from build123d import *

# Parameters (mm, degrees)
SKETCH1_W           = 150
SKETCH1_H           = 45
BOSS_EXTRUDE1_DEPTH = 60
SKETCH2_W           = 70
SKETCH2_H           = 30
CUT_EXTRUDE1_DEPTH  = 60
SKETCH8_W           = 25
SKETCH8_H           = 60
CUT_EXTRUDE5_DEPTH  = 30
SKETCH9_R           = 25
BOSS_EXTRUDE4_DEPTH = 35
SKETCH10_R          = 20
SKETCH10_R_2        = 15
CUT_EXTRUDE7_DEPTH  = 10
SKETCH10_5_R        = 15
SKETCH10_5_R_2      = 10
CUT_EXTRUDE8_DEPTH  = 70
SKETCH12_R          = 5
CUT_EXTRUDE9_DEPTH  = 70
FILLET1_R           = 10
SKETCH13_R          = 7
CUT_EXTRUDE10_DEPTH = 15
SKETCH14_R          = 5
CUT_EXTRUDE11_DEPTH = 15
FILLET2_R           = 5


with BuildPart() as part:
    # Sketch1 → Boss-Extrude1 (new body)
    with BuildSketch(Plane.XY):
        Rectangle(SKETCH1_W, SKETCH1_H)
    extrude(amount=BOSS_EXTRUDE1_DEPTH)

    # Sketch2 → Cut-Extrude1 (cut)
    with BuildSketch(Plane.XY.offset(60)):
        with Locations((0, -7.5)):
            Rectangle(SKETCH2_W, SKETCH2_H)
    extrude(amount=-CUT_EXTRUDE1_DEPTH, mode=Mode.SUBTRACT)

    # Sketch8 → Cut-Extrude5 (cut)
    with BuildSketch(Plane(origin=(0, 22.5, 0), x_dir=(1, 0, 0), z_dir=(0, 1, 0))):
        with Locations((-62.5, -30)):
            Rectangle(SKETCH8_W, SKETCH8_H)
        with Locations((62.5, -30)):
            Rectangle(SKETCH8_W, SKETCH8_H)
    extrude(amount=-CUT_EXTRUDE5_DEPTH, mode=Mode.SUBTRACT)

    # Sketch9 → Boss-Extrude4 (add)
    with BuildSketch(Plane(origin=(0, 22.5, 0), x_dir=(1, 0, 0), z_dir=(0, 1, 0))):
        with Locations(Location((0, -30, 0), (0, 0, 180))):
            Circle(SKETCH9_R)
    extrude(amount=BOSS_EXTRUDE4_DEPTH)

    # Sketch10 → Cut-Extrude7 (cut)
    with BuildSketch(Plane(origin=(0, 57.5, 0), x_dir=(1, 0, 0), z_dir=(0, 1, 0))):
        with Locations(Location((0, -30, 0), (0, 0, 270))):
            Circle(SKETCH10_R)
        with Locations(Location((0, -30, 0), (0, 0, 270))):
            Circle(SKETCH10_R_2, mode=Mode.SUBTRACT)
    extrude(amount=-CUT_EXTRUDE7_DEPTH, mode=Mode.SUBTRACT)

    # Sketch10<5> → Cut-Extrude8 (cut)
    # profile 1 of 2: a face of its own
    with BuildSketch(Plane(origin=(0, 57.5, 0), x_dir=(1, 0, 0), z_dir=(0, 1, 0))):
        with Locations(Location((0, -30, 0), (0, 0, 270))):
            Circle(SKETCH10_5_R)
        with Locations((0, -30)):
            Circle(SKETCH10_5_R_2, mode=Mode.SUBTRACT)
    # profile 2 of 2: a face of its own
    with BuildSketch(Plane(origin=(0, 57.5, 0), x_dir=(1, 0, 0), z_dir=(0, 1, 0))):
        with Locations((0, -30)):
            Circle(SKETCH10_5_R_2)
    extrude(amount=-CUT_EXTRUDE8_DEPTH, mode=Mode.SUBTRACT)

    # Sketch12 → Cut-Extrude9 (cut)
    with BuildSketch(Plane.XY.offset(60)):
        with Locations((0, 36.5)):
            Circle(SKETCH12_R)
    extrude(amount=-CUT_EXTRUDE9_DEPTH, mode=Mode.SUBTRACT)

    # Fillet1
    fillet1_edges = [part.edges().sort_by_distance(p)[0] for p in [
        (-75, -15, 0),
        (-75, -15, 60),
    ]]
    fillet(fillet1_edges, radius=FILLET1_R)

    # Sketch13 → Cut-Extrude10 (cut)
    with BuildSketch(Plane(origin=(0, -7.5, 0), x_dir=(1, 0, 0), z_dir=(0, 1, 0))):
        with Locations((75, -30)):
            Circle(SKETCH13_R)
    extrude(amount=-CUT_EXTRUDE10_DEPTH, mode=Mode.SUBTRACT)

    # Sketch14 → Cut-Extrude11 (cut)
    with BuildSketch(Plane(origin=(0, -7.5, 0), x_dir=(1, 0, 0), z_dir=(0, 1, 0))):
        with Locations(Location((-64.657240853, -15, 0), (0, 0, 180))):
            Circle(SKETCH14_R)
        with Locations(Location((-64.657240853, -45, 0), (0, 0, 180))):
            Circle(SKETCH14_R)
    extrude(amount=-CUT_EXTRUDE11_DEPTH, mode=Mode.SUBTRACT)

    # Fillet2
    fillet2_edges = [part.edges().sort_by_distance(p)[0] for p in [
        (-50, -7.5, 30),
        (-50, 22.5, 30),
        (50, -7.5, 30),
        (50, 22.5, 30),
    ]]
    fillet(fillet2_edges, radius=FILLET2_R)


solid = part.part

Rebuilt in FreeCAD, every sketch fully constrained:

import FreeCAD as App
import Part
import Sketcher
Q = App.Units.Quantity


def edges_at(feature, points):
    """Names of the edges that pass closest to the given points."""
    edges = feature.Shape.Edges
    near = lambda p: min(range(len(edges)), key=lambda i: edges[i].distToShape(Part.Vertex(*p))[0])
    return sorted({f"Edge{near(p) + 1}" for p in points})

doc = App.newDocument("Part")
body = doc.addObject("PartDesign::Body", "Body")

sketch1 = body.newObject("Sketcher::SketchObject", "Sketch")
sketch1.AttachmentSupport = (doc.getObject("XY_Plane"), [""])
sketch1.MapMode = "FlatFace"
sketch1.addGeometry([
    Part.LineSegment(App.Vector(-75, 22, 0), App.Vector(-75, -22, 0)),
    Part.LineSegment(App.Vector(-75, -22, 0), App.Vector(75, -22, 0)),
    Part.LineSegment(App.Vector(75, -22, 0), App.Vector(75, 22, 0)),
    Part.LineSegment(App.Vector(75, 22, 0), App.Vector(-75, 22, 0)),
], False)
sketch1.addConstraint([
    Sketcher.Constraint("Coincident", 0, 2, 1, 1),
    Sketcher.Constraint("Coincident", 1, 2, 2, 1),
    Sketcher.Constraint("Coincident", 2, 2, 3, 1),
    Sketcher.Constraint("Coincident", 3, 2, 0, 1),
    Sketcher.Constraint("Vertical", 0),
    Sketcher.Constraint("Horizontal", 1),
    Sketcher.Constraint("Vertical", 2),
    Sketcher.Constraint("Horizontal", 3),
    Sketcher.Constraint("Symmetric", 0, 2, 2, 2, -1, 1),
    Sketcher.Constraint("DistanceX", 1, 1, 1, 2, Q("150 mm")),
    Sketcher.Constraint("DistanceY", 0, 2, 0, 1, Q("45 mm")),
])
pad1 = body.newObject("PartDesign::Pad", "Pad")
pad1.Profile = sketch1
pad1.Length = 60

sketch2 = body.newObject("Sketcher::SketchObject", "Sketch001")
sketch2.AttachmentSupport = (doc.getObject("XY_Plane"), [""])
sketch2.MapMode = "FlatFace"
sketch2.AttachmentOffset = App.Placement(App.Vector(0, 0, 60), App.Rotation())
sketch2.addGeometry([
    Part.LineSegment(App.Vector(-35, 8, 0), App.Vector(-35, -22, 0)),
    Part.LineSegment(App.Vector(-35, -22, 0), App.Vector(35, -22, 0)),
    Part.LineSegment(App.Vector(35, -22, 0), App.Vector(35, 8, 0)),
    Part.LineSegment(App.Vector(35, 8, 0), App.Vector(-35, 8, 0)),
], False)
sketch2.addConstraint([
    Sketcher.Constraint("Coincident", 0, 2, 1, 1),
    Sketcher.Constraint("Coincident", 1, 2, 2, 1),
    Sketcher.Constraint("Coincident", 2, 2, 3, 1),
    Sketcher.Constraint("Coincident", 3, 2, 0, 1),
    Sketcher.Constraint("Vertical", 0),
    Sketcher.Constraint("Horizontal", 1),
    Sketcher.Constraint("Vertical", 2),
    Sketcher.Constraint("Horizontal", 3),
    Sketcher.Constraint("DistanceX", 1, 1, 1, 2, Q("70 mm")),
    Sketcher.Constraint("DistanceY", 0, 2, 0, 1, Q("30 mm")),
    Sketcher.Constraint("DistanceX", 0, 2, -1, 1, Q("35 mm")),
    Sketcher.Constraint("DistanceY", 0, 2, -1, 1, Q("22.5 mm")),
])
pocket1 = body.newObject("PartDesign::Pocket", "Pocket")
pocket1.Profile = sketch2
pocket1.Length = 60

sketch3 = body.newObject("Sketcher::SketchObject", "Sketch002")
sketch3.AttachmentSupport = (doc.getObject("XZ_Plane"), [""])
sketch3.MapMode = "FlatFace"
sketch3.AttachmentOffset = App.Placement(App.Vector(0, 0, -22.5), App.Rotation())
sketch3.addGeometry([
    Part.LineSegment(App.Vector(-75, 0, 0), App.Vector(-75, 60, 0)),
    Part.LineSegment(App.Vector(-75, 60, 0), App.Vector(-50, 60, 0)),
    Part.LineSegment(App.Vector(-50, 60, 0), App.Vector(-50, 0, 0)),
    Part.LineSegment(App.Vector(-50, 0, 0), App.Vector(-75, 0, 0)),
    Part.LineSegment(App.Vector(50, 0, 0), App.Vector(50, 60, 0)),
    Part.LineSegment(App.Vector(50, 60, 0), App.Vector(75, 60, 0)),
    Part.LineSegment(App.Vector(75, 60, 0), App.Vector(75, 0, 0)),
    Part.LineSegment(App.Vector(75, 0, 0), App.Vector(50, 0, 0)),
], False)
sketch3.addConstraint([
    Sketcher.Constraint("Coincident", 0, 2, 1, 1),
    Sketcher.Constraint("Coincident", 1, 2, 2, 1),
    Sketcher.Constraint("Coincident", 2, 2, 3, 1),
    Sketcher.Constraint("Coincident", 3, 2, 0, 1),
    Sketcher.Constraint("Coincident", 4, 2, 5, 1),
    Sketcher.Constraint("Coincident", 5, 2, 6, 1),
    Sketcher.Constraint("Coincident", 6, 2, 7, 1),
    Sketcher.Constraint("Coincident", 7, 2, 4, 1),
    Sketcher.Constraint("Vertical", 0),
    Sketcher.Constraint("Horizontal", 1),
    Sketcher.Constraint("Vertical", 2),
    Sketcher.Constraint("Horizontal", 3),
    Sketcher.Constraint("Vertical", 4),
    Sketcher.Constraint("Horizontal", 5),
    Sketcher.Constraint("Vertical", 6),
    Sketcher.Constraint("Horizontal", 7),
    Sketcher.Constraint("Symmetric", 3, 2, 6, 2, -1, 1),
    Sketcher.Constraint("Symmetric", 1, 2, 4, 2, -2),
    Sketcher.Constraint("PointOnObject", 2, 2, -1),
    Sketcher.Constraint("DistanceX", 1, 1, 1, 2, Q("25 mm")),
    Sketcher.Constraint("DistanceY", 0, 1, 0, 2, Q("60 mm")),
    Sketcher.Constraint("DistanceX", 0, 2, -1, 1, Q("75 mm")),
])
pocket2 = body.newObject("PartDesign::Pocket", "Pocket001")
pocket2.Profile = sketch3
pocket2.Length = 30
pocket2.Reversed = True

sketch4 = body.newObject("Sketcher::SketchObject", "Sketch003")
sketch4.AttachmentSupport = (doc.getObject("XZ_Plane"), [""])
sketch4.MapMode = "FlatFace"
sketch4.AttachmentOffset = App.Placement(App.Vector(0, 0, -22.5), App.Rotation())
sketch4.addGeometry(Part.Circle(App.Vector(0, 30, 0), App.Vector(0, 0, 1), 25), False)
sketch4.addConstraint([
    Sketcher.Constraint("PointOnObject", 0, 3, -2),
    Sketcher.Constraint("Diameter", 0, Q("50 mm")),
    Sketcher.Constraint("DistanceY", -1, 1, 0, 3, Q("30 mm")),
])
pad2 = body.newObject("PartDesign::Pad", "Pad001")
pad2.Profile = sketch4
pad2.Length = 35
pad2.Reversed = True

sketch5 = body.newObject("Sketcher::SketchObject", "Sketch004")
sketch5.AttachmentSupport = (doc.getObject("XZ_Plane"), [""])
sketch5.MapMode = "FlatFace"
sketch5.AttachmentOffset = App.Placement(App.Vector(0, 0, -57.5), App.Rotation())
sketch5.addGeometry([
    Part.Circle(App.Vector(0, 30, 0), App.Vector(0, 0, 1), 20),
    Part.Circle(App.Vector(0, 30, 0), App.Vector(0, 0, 1), 15),
], False)
sketch5.addConstraint([
    Sketcher.Constraint("Coincident", 1, 3, 0, 3),
    Sketcher.Constraint("PointOnObject", 0, 3, -2),
    Sketcher.Constraint("Diameter", 0, Q("40 mm")),
    Sketcher.Constraint("Diameter", 1, Q("30 mm")),
    Sketcher.Constraint("DistanceY", -1, 1, 0, 3, Q("30 mm")),
])
pocket3 = body.newObject("PartDesign::Pocket", "Pocket002")
pocket3.Profile = sketch5
pocket3.Length = 10
pocket3.Reversed = True

sketch6 = body.newObject("Sketcher::SketchObject", "Sketch005")
sketch6.AttachmentSupport = (doc.getObject("XZ_Plane"), [""])
sketch6.MapMode = "FlatFace"
sketch6.AttachmentOffset = App.Placement(App.Vector(0, 0, -57.5), App.Rotation())
sketch6.addGeometry(Part.Circle(App.Vector(0, 30, 0), App.Vector(0, 0, 1), 15), False)
sketch6.addConstraint([
    Sketcher.Constraint("PointOnObject", 0, 3, -2),
    Sketcher.Constraint("Diameter", 0, Q("30 mm")),
    Sketcher.Constraint("DistanceY", -1, 1, 0, 3, Q("30 mm")),
])
pocket4 = body.newObject("PartDesign::Pocket", "Pocket003")
pocket4.Profile = sketch6
pocket4.Length = 70
pocket4.Reversed = True

sketch7 = body.newObject("Sketcher::SketchObject", "Sketch006")
sketch7.AttachmentSupport = (doc.getObject("XY_Plane"), [""])
sketch7.MapMode = "FlatFace"
sketch7.AttachmentOffset = App.Placement(App.Vector(0, 0, 60), App.Rotation())
sketch7.addGeometry(Part.Circle(App.Vector(0, 36, 0), App.Vector(0, 0, 1), 5), False)
sketch7.addConstraint([
    Sketcher.Constraint("PointOnObject", 0, 3, -2),
    Sketcher.Constraint("Diameter", 0, Q("10 mm")),
    Sketcher.Constraint("DistanceY", -1, 1, 0, 3, Q("36.5 mm")),
])
pocket5 = body.newObject("PartDesign::Pocket", "Pocket004")
pocket5.Profile = sketch7
pocket5.Length = 70
doc.recompute()

fillet = body.newObject("PartDesign::Fillet", "Fillet")
fillet.Base = (pocket5, edges_at(pocket5, [(-75, -15, 0), (-75, -15, 60)]))
fillet.Radius = 10

sketch8 = body.newObject("Sketcher::SketchObject", "Sketch007")
sketch8.AttachmentSupport = (doc.getObject("XZ_Plane"), [""])
sketch8.MapMode = "FlatFace"
sketch8.AttachmentOffset = App.Placement(App.Vector(0, 0, 7.5), App.Rotation())
sketch8.addGeometry(Part.Circle(App.Vector(75, 30, 0), App.Vector(0, 0, 1), 7), False)
sketch8.addConstraint([
    Sketcher.Constraint("Diameter", 0, Q("14 mm")),
    Sketcher.Constraint("DistanceX", -1, 1, 0, 3, Q("75 mm")),
    Sketcher.Constraint("DistanceY", -1, 1, 0, 3, Q("30 mm")),
])
pocket6 = body.newObject("PartDesign::Pocket", "Pocket005")
pocket6.Profile = sketch8
pocket6.Length = 15
pocket6.Reversed = True

sketch9 = body.newObject("Sketcher::SketchObject", "Sketch008")
sketch9.AttachmentSupport = (doc.getObject("XZ_Plane"), [""])
sketch9.MapMode = "FlatFace"
sketch9.AttachmentOffset = App.Placement(App.Vector(0, 0, 7.5), App.Rotation())
sketch9.addGeometry([
    Part.Circle(App.Vector(-65, 15, 0), App.Vector(0, 0, 1), 5),
    Part.Circle(App.Vector(-65, 45, 0), App.Vector(0, 0, 1), 5),
], False)
sketch9.addConstraint([
    Sketcher.Constraint("Equal", 0, 1),
    Sketcher.Constraint("Vertical", 0, 3, 1, 3),
    Sketcher.Constraint("Diameter", 0, Q("10 mm")),
    Sketcher.Constraint("DistanceY", -1, 1, 0, 3, Q("15 mm")),
    Sketcher.Constraint("DistanceY", -1, 1, 1, 3, Q("45 mm")),
    Sketcher.Constraint("DistanceX", 0, 3, -1, 1, Q("64.657241 mm")),
])
pocket7 = body.newObject("PartDesign::Pocket", "Pocket006")
pocket7.Profile = sketch9
pocket7.Length = 15
pocket7.Reversed = True
doc.recompute()

fillet2 = body.newObject("PartDesign::Fillet", "Fillet001")
fillet2.Base = (pocket7, edges_at(pocket7, [
    (-50, -7.5, 30),
    (-50, 22.5, 30),
    (50, -7.5, 30),
    (50, 22.5, 30),
]))
fillet2.Radius = 5

doc.recompute()
